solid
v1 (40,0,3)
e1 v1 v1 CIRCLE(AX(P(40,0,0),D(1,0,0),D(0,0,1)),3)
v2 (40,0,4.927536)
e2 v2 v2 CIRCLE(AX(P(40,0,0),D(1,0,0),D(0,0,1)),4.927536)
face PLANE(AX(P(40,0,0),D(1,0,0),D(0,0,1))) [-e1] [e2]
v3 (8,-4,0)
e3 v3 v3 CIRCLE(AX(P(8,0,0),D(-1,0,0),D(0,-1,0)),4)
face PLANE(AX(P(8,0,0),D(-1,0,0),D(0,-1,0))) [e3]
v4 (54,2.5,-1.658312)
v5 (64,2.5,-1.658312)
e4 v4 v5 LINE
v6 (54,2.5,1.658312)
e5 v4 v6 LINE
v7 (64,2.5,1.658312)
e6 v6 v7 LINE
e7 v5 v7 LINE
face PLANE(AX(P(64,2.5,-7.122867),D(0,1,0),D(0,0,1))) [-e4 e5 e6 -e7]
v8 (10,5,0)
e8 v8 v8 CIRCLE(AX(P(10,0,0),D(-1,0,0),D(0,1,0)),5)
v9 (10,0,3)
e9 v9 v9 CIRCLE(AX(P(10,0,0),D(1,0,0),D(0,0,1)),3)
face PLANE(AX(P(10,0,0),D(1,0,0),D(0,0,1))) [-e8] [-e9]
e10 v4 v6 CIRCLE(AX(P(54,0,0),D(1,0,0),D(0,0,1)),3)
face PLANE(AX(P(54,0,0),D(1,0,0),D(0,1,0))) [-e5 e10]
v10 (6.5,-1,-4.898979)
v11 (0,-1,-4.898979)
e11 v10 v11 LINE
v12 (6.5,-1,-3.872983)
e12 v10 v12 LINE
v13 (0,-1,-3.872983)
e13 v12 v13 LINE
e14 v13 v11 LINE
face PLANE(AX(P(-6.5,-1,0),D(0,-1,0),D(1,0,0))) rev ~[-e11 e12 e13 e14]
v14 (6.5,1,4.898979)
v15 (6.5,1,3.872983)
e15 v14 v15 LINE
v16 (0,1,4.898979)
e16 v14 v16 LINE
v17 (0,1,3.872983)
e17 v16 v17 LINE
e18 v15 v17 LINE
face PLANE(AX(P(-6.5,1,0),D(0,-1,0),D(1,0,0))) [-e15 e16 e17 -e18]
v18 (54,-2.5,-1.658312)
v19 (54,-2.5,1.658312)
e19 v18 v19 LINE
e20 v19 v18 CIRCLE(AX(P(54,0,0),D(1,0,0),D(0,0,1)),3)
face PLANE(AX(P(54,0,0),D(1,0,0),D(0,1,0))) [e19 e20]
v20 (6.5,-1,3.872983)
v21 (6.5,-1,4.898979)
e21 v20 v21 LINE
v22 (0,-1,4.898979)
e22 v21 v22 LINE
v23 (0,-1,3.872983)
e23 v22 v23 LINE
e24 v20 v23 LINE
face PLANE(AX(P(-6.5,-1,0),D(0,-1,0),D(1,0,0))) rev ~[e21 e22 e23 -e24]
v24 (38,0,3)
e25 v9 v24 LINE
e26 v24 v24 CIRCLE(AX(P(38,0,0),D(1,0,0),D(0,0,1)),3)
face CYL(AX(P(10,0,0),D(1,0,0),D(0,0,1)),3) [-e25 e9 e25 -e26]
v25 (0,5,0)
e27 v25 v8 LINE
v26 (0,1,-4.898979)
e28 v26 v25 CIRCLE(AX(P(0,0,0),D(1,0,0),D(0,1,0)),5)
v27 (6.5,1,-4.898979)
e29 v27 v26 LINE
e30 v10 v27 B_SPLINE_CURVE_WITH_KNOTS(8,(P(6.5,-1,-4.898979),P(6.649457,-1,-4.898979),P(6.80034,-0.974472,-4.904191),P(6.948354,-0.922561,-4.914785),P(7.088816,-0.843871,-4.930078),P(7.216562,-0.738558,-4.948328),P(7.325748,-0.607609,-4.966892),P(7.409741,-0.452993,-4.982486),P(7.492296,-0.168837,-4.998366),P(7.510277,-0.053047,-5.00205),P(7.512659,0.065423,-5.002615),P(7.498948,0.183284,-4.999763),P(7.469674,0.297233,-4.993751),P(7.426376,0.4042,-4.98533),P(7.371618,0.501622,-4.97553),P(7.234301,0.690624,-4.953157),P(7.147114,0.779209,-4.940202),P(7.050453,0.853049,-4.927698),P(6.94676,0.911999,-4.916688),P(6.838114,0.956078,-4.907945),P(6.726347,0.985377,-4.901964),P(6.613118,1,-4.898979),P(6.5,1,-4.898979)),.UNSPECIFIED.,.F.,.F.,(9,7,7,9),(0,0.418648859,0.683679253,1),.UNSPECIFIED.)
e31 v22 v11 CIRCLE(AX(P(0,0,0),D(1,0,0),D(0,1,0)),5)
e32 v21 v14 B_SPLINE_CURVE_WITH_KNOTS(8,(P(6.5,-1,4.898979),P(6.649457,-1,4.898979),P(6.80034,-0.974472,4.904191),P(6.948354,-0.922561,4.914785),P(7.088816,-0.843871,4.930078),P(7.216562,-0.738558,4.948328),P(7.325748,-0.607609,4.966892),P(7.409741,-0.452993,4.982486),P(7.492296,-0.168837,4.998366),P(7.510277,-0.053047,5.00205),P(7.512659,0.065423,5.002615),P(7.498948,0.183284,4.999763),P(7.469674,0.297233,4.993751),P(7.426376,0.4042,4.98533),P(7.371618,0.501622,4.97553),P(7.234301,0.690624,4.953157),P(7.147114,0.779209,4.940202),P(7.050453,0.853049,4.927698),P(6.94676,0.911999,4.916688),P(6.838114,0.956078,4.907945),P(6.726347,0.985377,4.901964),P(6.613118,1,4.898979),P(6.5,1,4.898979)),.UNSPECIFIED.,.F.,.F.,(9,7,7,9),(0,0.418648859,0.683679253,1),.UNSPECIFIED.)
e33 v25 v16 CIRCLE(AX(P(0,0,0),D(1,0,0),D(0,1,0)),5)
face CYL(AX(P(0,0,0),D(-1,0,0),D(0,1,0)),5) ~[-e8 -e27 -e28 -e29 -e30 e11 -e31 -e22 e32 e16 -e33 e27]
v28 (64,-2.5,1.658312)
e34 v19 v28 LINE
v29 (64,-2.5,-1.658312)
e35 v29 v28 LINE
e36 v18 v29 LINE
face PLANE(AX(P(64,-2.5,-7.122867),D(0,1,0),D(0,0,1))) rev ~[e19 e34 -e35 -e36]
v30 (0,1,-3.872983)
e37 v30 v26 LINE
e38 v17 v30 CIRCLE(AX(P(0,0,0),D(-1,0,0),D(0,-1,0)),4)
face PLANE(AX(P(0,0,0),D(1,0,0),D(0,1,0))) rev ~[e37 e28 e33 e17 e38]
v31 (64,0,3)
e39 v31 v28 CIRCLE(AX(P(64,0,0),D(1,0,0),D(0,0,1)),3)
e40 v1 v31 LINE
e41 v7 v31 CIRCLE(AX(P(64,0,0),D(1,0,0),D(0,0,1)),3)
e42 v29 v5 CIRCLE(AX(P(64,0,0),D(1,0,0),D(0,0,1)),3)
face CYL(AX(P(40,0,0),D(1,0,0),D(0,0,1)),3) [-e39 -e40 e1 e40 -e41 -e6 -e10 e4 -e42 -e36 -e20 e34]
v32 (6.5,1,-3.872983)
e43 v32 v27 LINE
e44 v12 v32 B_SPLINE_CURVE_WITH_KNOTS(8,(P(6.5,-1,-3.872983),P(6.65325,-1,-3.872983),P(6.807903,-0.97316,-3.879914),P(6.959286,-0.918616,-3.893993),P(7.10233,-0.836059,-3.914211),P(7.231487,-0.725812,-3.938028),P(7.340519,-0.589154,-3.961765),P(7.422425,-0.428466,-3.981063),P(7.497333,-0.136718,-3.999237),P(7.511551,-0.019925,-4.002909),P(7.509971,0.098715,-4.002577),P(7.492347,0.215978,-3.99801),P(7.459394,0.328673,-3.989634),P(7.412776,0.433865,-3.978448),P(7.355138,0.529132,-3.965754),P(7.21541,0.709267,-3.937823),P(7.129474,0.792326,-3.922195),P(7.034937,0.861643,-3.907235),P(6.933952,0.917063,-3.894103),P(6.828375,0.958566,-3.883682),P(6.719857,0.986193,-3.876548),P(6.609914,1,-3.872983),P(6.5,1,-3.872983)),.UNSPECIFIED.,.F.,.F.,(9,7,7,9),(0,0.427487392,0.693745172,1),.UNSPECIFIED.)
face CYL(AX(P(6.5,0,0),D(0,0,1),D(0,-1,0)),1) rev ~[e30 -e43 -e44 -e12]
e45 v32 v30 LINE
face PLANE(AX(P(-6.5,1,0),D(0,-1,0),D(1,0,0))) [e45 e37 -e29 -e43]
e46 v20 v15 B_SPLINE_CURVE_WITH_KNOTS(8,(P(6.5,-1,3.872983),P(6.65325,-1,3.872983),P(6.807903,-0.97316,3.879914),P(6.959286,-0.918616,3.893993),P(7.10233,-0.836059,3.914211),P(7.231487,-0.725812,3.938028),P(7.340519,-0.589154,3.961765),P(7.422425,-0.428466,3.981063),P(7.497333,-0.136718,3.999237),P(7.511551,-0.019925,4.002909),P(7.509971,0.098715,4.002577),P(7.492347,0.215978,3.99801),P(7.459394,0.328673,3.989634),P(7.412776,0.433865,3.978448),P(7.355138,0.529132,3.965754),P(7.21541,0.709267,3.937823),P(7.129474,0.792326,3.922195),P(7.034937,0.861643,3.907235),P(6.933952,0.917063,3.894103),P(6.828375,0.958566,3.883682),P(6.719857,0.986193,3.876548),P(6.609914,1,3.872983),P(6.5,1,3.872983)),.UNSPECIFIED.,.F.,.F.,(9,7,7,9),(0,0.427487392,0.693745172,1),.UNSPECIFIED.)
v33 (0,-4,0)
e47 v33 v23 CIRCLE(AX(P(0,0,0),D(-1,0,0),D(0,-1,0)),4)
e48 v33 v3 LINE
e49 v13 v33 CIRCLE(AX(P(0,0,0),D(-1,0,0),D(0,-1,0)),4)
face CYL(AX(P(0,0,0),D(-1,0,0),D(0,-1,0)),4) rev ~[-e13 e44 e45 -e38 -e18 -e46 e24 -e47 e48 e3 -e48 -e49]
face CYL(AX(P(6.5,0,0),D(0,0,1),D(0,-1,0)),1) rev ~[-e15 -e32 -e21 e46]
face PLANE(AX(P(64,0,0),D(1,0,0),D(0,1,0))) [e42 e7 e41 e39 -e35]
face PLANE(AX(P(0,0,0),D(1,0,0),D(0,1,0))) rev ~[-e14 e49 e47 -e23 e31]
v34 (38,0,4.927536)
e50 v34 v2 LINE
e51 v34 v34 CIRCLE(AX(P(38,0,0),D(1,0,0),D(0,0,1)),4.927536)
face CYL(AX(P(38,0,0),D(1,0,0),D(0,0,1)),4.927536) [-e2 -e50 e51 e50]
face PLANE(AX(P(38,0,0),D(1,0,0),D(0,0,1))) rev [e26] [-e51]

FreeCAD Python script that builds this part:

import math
import FreeCAD as App
import Part
import Sketcher
from FreeCAD import Vector


def add_polygon(sketch, points):
    """Adds a closed chain of lines whose ends are joined by coincident constraints."""
    first, n = sketch.GeometryCount, len(points)
    for a, b in zip(points, points[1:] + points[:1]):
        sketch.addGeometry(Part.LineSegment(App.Vector(*a, 0), App.Vector(*b, 0)), False)
    for i in range(n):
        sketch.addConstraint(Sketcher.Constraint("Coincident", first + i, 2, first + (i + 1) % n, 1))

doc = App.newDocument("Part")
body = doc.addObject("PartDesign::Body", "Body")

# Sketch on YZ plane
sketch1 = body.newObject("Sketcher::SketchObject", "Sketch")
sketch1.AttachmentSupport = (doc.getObject("YZ_Plane"), [""])
sketch1.MapMode = "FlatFace"
sketch1.addGeometry(Part.Circle(Vector(0, 0, 0), Vector(0, 0, 1), 5), False)
sketch1.addConstraint([
    Sketcher.Constraint("Coincident", 0, 3, -1, 1),
    Sketcher.Constraint("Diameter", 0, 10.0),
])
pad1 = body.newObject("PartDesign::Pad", "Pad")
pad1.Profile = sketch1
pad1.Length = 64

# Sketch on XZ plane
sketch2 = body.newObject("Sketcher::SketchObject", "Sketch001")
sketch2.AttachmentSupport = (doc.getObject("XZ_Plane"), [""])
sketch2.MapMode = "FlatFace"
add_polygon(sketch2, [(10, 6.4), (10, 3), (38, 3), (38, 4.9), (40, 4.9), (40, 3), (64, 3), (64, 6.4)])  # lines 0-7
sketch2.addConstraint([
    Sketcher.Constraint("Vertical", 0),
    Sketcher.Constraint("Horizontal", 1),
    Sketcher.Constraint("Vertical", 2),
    Sketcher.Constraint("Horizontal", 3),
    Sketcher.Constraint("Vertical", 4),
    Sketcher.Constraint("Horizontal", 5),
    Sketcher.Constraint("Vertical", 6),
    Sketcher.Constraint("Horizontal", 7),
    Sketcher.Constraint("Horizontal", 1, 2, 4, 2),
    Sketcher.Constraint("DistanceX", 1, 1, 1, 2, 28.0),
    Sketcher.Constraint("DistanceX", 3, 1, 3, 2, 2.0),
    Sketcher.Constraint("DistanceX", 5, 1, 5, 2, 24.0),
    Sketcher.Constraint("DistanceX", -1, 1, 0, 2, 10.0),
    Sketcher.Constraint("DistanceY", -1, 1, 0, 2, 3.0),
    Sketcher.Constraint("DistanceY", 0, 2, 0, 1, 3.419506),
    Sketcher.Constraint("DistanceY", 2, 1, 2, 2, 1.927536),
])
groove = body.newObject("PartDesign::Groove", "Groove")
groove.Profile = sketch2
groove.ReferenceAxis = (sketch2, ["H_Axis"])
groove.Angle = 360

# Sketch on YZ plane
sketch3 = body.newObject("Sketcher::SketchObject", "Sketch002")
sketch3.AttachmentSupport = (doc.getObject("YZ_Plane"), [""])
sketch3.MapMode = "FlatFace"
sketch3.AttachmentOffset = App.Placement(Vector(0, 0, 64), App.Rotation())
add_polygon(sketch3, [(-9, 9), (-9, -9), (9, -9), (9, 9)])  # lines 0-3
add_polygon(sketch3, [(2, -7), (-2, -7), (-2, 7), (2, 7)])  # lines 4-7
sketch3.addConstraint([
    Sketcher.Constraint("Vertical", 0),
    Sketcher.Constraint("Horizontal", 1),
    Sketcher.Constraint("Vertical", 2),
    Sketcher.Constraint("Horizontal", 3),
    Sketcher.Constraint("Horizontal", 4),
    Sketcher.Constraint("Vertical", 5),
    Sketcher.Constraint("Horizontal", 6),
    Sketcher.Constraint("Vertical", 7),
    Sketcher.Constraint("Symmetric", 0, 2, 2, 2, -1, 1),
    Sketcher.Constraint("Symmetric", 4, 2, 6, 2, -1, 1),
    Sketcher.Constraint("DistanceX", 4, 2, 4, 1, 5.0),
    Sketcher.Constraint("DistanceX", 1, 1, 1, 2, 18.964292),
    Sketcher.Constraint("DistanceY", 0, 2, 0, 1, 17.682846),
    Sketcher.Constraint("DistanceY", 5, 1, 5, 2, 14.245734),
])
pocket1 = body.newObject("PartDesign::Pocket", "Pocket")
pocket1.Profile = sketch3
pocket1.Length = 10

# Sketch on XY plane
sketch4 = body.newObject("Sketcher::SketchObject", "Sketch003")
sketch4.AttachmentSupport = (doc.getObject("XY_Plane"), [""])
sketch4.MapMode = "FlatFace"
sketch4.addGeometry([
    Part.LineSegment(Vector(-6.5, 1, 0), Vector(-6.5, -1, 0)),
    Part.LineSegment(Vector(-6.5, -1, 0), Vector(6.5, -1, 0)),
    Part.ArcOfCircle(Part.Circle(Vector(6.5, 0, 0), Vector(0, 0, 1), 1), math.radians(-90), math.radians(90)),
    Part.LineSegment(Vector(6.5, 1, 0), Vector(-6.5, 1, 0)),
], False)
sketch4.addConstraint([
    Sketcher.Constraint("Coincident", 0, 2, 1, 1),
    Sketcher.Constraint("Tangent", 1, 2, 2, 1),
    Sketcher.Constraint("Tangent", 2, 2, 3, 1),
    Sketcher.Constraint("Coincident", 3, 2, 0, 1),
    Sketcher.Constraint("Vertical", 0),
    Sketcher.Constraint("Horizontal", 1),
    Sketcher.Constraint("Horizontal", 3),
    Sketcher.Constraint("Symmetric", 0, 2, 2, 2, -1, 1),
    Sketcher.Constraint("Radius", 2, 1.0),
    Sketcher.Constraint("DistanceX", 1, 1, 1, 2, 13.0),
])
pocket2 = body.newObject("PartDesign::Pocket", "Pocket001")
pocket2.Profile = sketch4
pocket2.Length = 25
pocket2.Midplane = True

# Sketch on YZ plane
sketch5 = body.newObject("Sketcher::SketchObject", "Sketch004")
sketch5.AttachmentSupport = (doc.getObject("YZ_Plane"), [""])
sketch5.MapMode = "FlatFace"
sketch5.addGeometry(Part.Circle(Vector(0, 0, 0), Vector(0, 0, 1), 4), False)
sketch5.addConstraint([
    Sketcher.Constraint("Coincident", 0, 3, -1, 1),
    Sketcher.Constraint("Diameter", 0, 8.0),
])
pocket3 = body.newObject("PartDesign::Pocket", "Pocket002")
pocket3.Profile = sketch5
pocket3.Length = 8
pocket3.Reversed = True

doc.recompute()
